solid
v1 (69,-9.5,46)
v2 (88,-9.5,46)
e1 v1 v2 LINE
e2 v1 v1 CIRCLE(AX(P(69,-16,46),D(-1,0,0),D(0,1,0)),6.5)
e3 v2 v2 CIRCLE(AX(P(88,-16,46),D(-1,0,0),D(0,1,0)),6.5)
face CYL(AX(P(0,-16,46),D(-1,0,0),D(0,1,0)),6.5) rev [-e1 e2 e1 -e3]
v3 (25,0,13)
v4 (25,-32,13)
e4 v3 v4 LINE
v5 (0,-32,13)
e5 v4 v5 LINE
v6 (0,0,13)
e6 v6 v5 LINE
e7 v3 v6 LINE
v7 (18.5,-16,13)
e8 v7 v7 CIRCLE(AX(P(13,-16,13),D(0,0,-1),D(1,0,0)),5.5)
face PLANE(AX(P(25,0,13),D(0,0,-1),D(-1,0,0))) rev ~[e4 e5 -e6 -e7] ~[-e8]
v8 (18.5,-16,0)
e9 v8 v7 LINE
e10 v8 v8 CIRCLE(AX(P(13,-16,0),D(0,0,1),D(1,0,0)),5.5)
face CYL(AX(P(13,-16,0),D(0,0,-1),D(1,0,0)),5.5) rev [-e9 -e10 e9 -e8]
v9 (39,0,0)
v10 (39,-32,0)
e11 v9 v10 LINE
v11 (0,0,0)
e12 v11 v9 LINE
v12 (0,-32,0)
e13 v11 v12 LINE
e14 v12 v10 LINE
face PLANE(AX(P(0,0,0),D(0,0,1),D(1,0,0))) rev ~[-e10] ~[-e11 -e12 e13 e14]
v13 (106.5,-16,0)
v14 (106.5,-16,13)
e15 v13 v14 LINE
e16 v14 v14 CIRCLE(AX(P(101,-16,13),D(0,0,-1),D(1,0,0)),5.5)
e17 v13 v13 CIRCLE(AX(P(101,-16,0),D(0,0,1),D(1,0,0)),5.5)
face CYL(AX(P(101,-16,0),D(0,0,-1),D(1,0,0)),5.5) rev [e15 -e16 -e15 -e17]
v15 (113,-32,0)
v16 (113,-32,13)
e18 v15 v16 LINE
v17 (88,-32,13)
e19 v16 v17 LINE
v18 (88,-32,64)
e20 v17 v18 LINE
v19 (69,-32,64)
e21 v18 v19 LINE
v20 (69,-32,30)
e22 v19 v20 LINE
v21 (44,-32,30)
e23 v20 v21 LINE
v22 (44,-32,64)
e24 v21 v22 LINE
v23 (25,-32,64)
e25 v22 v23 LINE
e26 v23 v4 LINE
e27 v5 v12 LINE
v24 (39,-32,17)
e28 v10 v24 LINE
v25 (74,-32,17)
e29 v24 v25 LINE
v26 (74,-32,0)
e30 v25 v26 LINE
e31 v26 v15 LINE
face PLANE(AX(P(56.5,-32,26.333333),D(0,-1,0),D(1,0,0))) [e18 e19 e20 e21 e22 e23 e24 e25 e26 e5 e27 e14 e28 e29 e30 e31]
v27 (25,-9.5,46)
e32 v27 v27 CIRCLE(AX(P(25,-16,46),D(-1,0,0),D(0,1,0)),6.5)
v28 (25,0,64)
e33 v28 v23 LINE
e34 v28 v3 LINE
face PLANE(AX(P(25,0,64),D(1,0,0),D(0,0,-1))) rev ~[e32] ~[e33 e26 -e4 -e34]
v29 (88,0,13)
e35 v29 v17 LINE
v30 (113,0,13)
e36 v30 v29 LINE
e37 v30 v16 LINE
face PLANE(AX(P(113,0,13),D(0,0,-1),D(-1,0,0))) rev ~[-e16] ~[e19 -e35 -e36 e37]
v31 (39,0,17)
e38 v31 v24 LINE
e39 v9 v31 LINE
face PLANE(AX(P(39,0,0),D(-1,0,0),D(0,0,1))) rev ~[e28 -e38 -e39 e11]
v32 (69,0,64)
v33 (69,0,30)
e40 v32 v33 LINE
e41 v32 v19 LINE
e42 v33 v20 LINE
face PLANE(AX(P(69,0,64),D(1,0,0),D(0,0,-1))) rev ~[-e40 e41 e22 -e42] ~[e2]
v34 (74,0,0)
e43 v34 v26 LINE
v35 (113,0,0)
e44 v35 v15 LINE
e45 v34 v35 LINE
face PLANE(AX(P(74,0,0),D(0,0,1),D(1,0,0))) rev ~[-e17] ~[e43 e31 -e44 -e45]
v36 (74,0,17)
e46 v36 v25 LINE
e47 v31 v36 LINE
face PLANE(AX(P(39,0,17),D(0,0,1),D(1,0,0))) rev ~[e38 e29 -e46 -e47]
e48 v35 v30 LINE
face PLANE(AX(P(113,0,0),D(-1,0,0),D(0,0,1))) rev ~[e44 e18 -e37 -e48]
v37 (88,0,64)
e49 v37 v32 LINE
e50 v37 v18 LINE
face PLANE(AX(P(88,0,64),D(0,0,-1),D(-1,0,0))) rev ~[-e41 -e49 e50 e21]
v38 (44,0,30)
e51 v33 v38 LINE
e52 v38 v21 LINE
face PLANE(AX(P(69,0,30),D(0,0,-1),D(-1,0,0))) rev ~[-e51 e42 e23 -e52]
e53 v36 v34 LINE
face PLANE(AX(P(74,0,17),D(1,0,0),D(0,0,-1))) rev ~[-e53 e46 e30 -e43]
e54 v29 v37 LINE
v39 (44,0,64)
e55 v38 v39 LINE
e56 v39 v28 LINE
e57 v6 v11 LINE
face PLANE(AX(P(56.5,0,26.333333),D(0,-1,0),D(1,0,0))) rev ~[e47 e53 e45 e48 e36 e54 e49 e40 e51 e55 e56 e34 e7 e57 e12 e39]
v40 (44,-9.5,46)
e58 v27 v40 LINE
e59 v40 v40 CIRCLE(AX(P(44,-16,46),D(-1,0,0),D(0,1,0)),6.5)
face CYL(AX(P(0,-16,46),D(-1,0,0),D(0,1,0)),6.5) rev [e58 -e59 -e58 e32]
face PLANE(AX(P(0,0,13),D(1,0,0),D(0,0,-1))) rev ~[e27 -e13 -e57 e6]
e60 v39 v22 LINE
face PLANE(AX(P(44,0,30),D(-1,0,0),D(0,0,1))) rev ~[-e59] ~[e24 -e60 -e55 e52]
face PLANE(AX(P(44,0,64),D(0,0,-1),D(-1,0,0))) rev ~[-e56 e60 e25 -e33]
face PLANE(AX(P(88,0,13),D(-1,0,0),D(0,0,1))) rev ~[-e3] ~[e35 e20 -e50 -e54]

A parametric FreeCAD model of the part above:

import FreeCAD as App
import Part
import Sketcher
from FreeCAD import Vector

doc = App.newDocument("Part")
body = doc.addObject("PartDesign::Body", "Body")

sketch1 = body.newObject("Sketcher::SketchObject", "Sketch")
sketch1.AttachmentSupport = (doc.getObject("XZ_Plane"), [""])
sketch1.MapMode = "FlatFace"
sketch1.addGeometry(Part.LineSegment(Vector(0, 13, 0), Vector(0, 0, 0)), False)
sketch1.addGeometry(Part.LineSegment(Vector(0, 0, 0), Vector(39, 0, 0)), False)
sketch1.addGeometry(Part.LineSegment(Vector(39, 0, 0), Vector(39, 17, 0)), False)
sketch1.addGeometry(Part.LineSegment(Vector(39, 17, 0), Vector(74, 17, 0)), False)
sketch1.addGeometry(Part.LineSegment(Vector(74, 17, 0), Vector(74, 0, 0)), False)
sketch1.addGeometry(Part.LineSegment(Vector(74, 0, 0), Vector(113, 0, 0)), False)
sketch1.addGeometry(Part.LineSegment(Vector(113, 0, 0), Vector(113, 13, 0)), False)
sketch1.addGeometry(Part.LineSegment(Vector(113, 13, 0), Vector(88, 13, 0)), False)
sketch1.addGeometry(Part.LineSegment(Vector(88, 13, 0), Vector(88, 64, 0)), False)
sketch1.addGeometry(Part.LineSegment(Vector(88, 64, 0), Vector(69, 64, 0)), False)
sketch1.addGeometry(Part.LineSegment(Vector(69, 64, 0), Vector(69, 30, 0)), False)
sketch1.addGeometry(Part.LineSegment(Vector(69, 30, 0), Vector(44, 30, 0)), False)
sketch1.addGeometry(Part.LineSegment(Vector(44, 30, 0), Vector(44, 64, 0)), False)
sketch1.addGeometry(Part.LineSegment(Vector(44, 64, 0), Vector(25, 64, 0)), False)
sketch1.addGeometry(Part.LineSegment(Vector(25, 64, 0), Vector(25, 13, 0)), False)
sketch1.addGeometry(Part.LineSegment(Vector(25, 13, 0), Vector(0, 13, 0)), False)
sketch1.addConstraint(Sketcher.Constraint("Coincident", 0, 2, 1, 1))
sketch1.addConstraint(Sketcher.Constraint("Coincident", 1, 2, 2, 1))
sketch1.addConstraint(Sketcher.Constraint("Coincident", 2, 2, 3, 1))
sketch1.addConstraint(Sketcher.Constraint("Coincident", 3, 2, 4, 1))
sketch1.addConstraint(Sketcher.Constraint("Coincident", 4, 2, 5, 1))
sketch1.addConstraint(Sketcher.Constraint("Coincident", 5, 2, 6, 1))
sketch1.addConstraint(Sketcher.Constraint("Coincident", 6, 2, 7, 1))
sketch1.addConstraint(Sketcher.Constraint("Coincident", 7, 2, 8, 1))
sketch1.addConstraint(Sketcher.Constraint("Coincident", 8, 2, 9, 1))
sketch1.addConstraint(Sketcher.Constraint("Coincident", 9, 2, 10, 1))
sketch1.addConstraint(Sketcher.Constraint("Coincident", 10, 2, 11, 1))
sketch1.addConstraint(Sketcher.Constraint("Coincident", 11, 2, 12, 1))
sketch1.addConstraint(Sketcher.Constraint("Coincident", 12, 2, 13, 1))
sketch1.addConstraint(Sketcher.Constraint("Coincident", 13, 2, 14, 1))
sketch1.addConstraint(Sketcher.Constraint("Coincident", 14, 2, 15, 1))
sketch1.addConstraint(Sketcher.Constraint("Coincident", 15, 2, 0, 1))
sketch1.addConstraint(Sketcher.Constraint("Vertical", 0))
sketch1.addConstraint(Sketcher.Constraint("Horizontal", 1))
sketch1.addConstraint(Sketcher.Constraint("Vertical", 2))
sketch1.addConstraint(Sketcher.Constraint("Horizontal", 3))
sketch1.addConstraint(Sketcher.Constraint("Vertical", 4))
sketch1.addConstraint(Sketcher.Constraint("Horizontal", 5))
sketch1.addConstraint(Sketcher.Constraint("Vertical", 6))
sketch1.addConstraint(Sketcher.Constraint("Horizontal", 7))
sketch1.addConstraint(Sketcher.Constraint("Vertical", 8))
sketch1.addConstraint(Sketcher.Constraint("Horizontal", 9))
sketch1.addConstraint(Sketcher.Constraint("Vertical", 10))
sketch1.addConstraint(Sketcher.Constraint("Horizontal", 11))
sketch1.addConstraint(Sketcher.Constraint("Vertical", 12))
sketch1.addConstraint(Sketcher.Constraint("Horizontal", 13))
sketch1.addConstraint(Sketcher.Constraint("Vertical", 14))
sketch1.addConstraint(Sketcher.Constraint("Horizontal", 15))
sketch1.addConstraint(Sketcher.Constraint("Coincident", 0, 2, -1, 1))
sketch1.addConstraint(Sketcher.Constraint("PointOnObject", 4, 2, -1))
sketch1.addConstraint(Sketcher.Constraint("Horizontal", 9, 2, 12, 2))
sketch1.addConstraint(Sketcher.Constraint("Horizontal", 7, 2, 14, 2))
sketch1.addConstraint(Sketcher.Constraint("Equal", 1, 5))
sketch1.addConstraint(Sketcher.Constraint("Equal", 7, 11))
sketch1.addConstraint(Sketcher.Constraint("Equal", 9, 13))
sketch1.addConstraint(Sketcher.Constraint("Equal", 11, 15))
sketch1.addConstraint(Sketcher.Constraint("DistanceX", 1, 1, 1, 2, 39.0))
sketch1.addConstraint(Sketcher.Constraint("DistanceX", 3, 1, 3, 2, 35.0))
sketch1.addConstraint(Sketcher.Constraint("DistanceX", 7, 2, 7, 1, 25.0))
sketch1.addConstraint(Sketcher.Constraint("DistanceY", 0, 2, 0, 1, 13.0))
sketch1.addConstraint(Sketcher.Constraint("DistanceY", 2, 1, 2, 2, 17.0))
sketch1.addConstraint(Sketcher.Constraint("DistanceY", 8, 1, 8, 2, 51.0))
sketch1.addConstraint(Sketcher.Constraint("DistanceY", 10, 2, 10, 1, 34.0))
pad1 = body.newObject("PartDesign::Pad", "Pad")
pad1.Profile = sketch1
pad1.Length = 32

sketch2 = body.newObject("Sketcher::SketchObject", "Sketch001")
sketch2.AttachmentSupport = (doc.getObject("YZ_Plane"), [""])
sketch2.MapMode = "FlatFace"
sketch2.addGeometry(Part.Circle(Vector(-16, 46, 0), Vector(0, 0, 1), 6), False)
sketch2.addConstraint(Sketcher.Constraint("Diameter", 0, 13.0))
sketch2.addConstraint(Sketcher.Constraint("DistanceX", 0, 3, -1, 1, 16.0))
sketch2.addConstraint(Sketcher.Constraint("DistanceY", -1, 1, 0, 3, 46.0))
pocket1 = body.newObject("PartDesign::Pocket", "Pocket")
pocket1.Profile = sketch2
pocket1.Type = "ThroughAll"
pocket1.Reversed = True

sketch3 = body.newObject("Sketcher::SketchObject", "Sketch002")
sketch3.AttachmentSupport = (doc.getObject("XY_Plane"), [""])
sketch3.MapMode = "FlatFace"
sketch3.addGeometry(Part.Circle(Vector(13, -16, 0), Vector(0, 0, 1), 6), False)
sketch3.addConstraint(Sketcher.Constraint("Diameter", 0, 11.0))
sketch3.addConstraint(Sketcher.Constraint("DistanceX", -1, 1, 0, 3, 13.0))
sketch3.addConstraint(Sketcher.Constraint("DistanceY", 0, 3, -1, 1, 16.0))
pocket2 = body.newObject("PartDesign::Pocket", "Pocket001")
pocket2.Profile = sketch3
pocket2.Length = 25
pocket2.Reversed = True

sketch4 = body.newObject("Sketcher::SketchObject", "Sketch003")
sketch4.AttachmentSupport = (doc.getObject("XY_Plane"), [""])
sketch4.MapMode = "FlatFace"
sketch4.addGeometry(Part.Circle(Vector(101, -16, 0), Vector(0, 0, 1), 6), False)
sketch4.addConstraint(Sketcher.Constraint("Diameter", 0, 11.0))
sketch4.addConstraint(Sketcher.Constraint("DistanceX", -1, 1, 0, 3, 101.0))
sketch4.addConstraint(Sketcher.Constraint("DistanceY", 0, 3, -1, 1, 16.0))
pocket3 = body.newObject("PartDesign::Pocket", "Pocket002")
pocket3.Profile = sketch4
pocket3.Length = 25
pocket3.Reversed = True

doc.recompute()
